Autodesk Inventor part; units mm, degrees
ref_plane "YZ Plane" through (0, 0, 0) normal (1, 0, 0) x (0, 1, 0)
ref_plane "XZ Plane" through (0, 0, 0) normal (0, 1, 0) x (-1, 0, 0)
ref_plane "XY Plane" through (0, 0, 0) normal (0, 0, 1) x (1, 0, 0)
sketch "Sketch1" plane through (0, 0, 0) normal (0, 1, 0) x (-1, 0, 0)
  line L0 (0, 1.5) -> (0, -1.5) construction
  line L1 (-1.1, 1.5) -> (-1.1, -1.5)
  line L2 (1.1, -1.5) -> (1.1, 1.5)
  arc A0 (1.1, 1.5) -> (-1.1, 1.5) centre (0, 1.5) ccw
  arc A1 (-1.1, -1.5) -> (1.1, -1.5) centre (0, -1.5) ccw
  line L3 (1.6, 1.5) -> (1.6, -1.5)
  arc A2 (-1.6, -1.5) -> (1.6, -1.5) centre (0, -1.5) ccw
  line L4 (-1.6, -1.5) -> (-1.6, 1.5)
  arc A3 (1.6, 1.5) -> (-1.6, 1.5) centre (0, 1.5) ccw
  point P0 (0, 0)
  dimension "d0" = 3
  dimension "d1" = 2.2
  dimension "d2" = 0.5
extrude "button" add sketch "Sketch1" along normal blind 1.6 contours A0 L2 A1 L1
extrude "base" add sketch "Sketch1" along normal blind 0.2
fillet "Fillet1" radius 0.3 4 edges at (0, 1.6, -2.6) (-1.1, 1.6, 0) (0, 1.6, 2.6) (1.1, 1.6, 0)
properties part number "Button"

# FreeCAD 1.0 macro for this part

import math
import FreeCAD as App
import Part
import Sketcher
from FreeCAD import Vector
Q = App.Units.Quantity


def edges_at(feature, points):
    """Names of the edges that pass closest to the given points."""
    edges = feature.Shape.Edges
    near = lambda p: min(range(len(edges)), key=lambda i: edges[i].distToShape(Part.Vertex(*p))[0])
    return sorted({f"Edge{near(p) + 1}" for p in points})

doc = App.newDocument("Part")
body = doc.addObject("PartDesign::Body", "Body")

sketch1 = body.newObject("Sketcher::SketchObject", "Sketch")
sketch1.AttachmentSupport = (doc.getObject("XZ_Plane"), [""])
sketch1.MapMode = "FlatFace"
sketch1.addGeometry([
    Part.ArcOfCircle(Part.Circle(Vector(0, 1.5, 0), Vector(0, 0, 1), 1.1), math.radians(0), math.radians(180)),
    Part.LineSegment(Vector(1.1, 1.5, 0), Vector(1.1, -1.5, 0)),
    Part.ArcOfCircle(Part.Circle(Vector(0, -1.5, 0), Vector(0, 0, 1), 1.1), math.radians(180), math.radians(360)),
    Part.LineSegment(Vector(-1.1, -1.5, 0), Vector(-1.1, 1.5, 0)),
], False)
sketch1.addConstraint([
    Sketcher.Constraint("Tangent", 0, 1, 1, 1),
    Sketcher.Constraint("Tangent", 1, 2, 2, 2),
    Sketcher.Constraint("Tangent", 2, 1, 3, 1),
    Sketcher.Constraint("Tangent", 3, 2, 0, 2),
    Sketcher.Constraint("Vertical", 1),
    Sketcher.Constraint("Vertical", 3),
    Sketcher.Constraint("Symmetric", 0, 3, 2, 3, -1, 1),
    Sketcher.Constraint("Radius", 0, Q("1.1 mm")),
    Sketcher.Constraint("DistanceY", 1, 2, 1, 1, Q("3 mm")),
])
pad1 = body.newObject("PartDesign::Pad", "Pad")
pad1.Profile = sketch1
pad1.Length = 1.6
pad1.Reversed = True

sketch2 = body.newObject("Sketcher::SketchObject", "Sketch001")
sketch2.AttachmentSupport = (doc.getObject("XZ_Plane"), [""])
sketch2.MapMode = "FlatFace"
sketch2.addGeometry([
    Part.LineSegment(Vector(-1.6, -1.5, 0), Vector(-1.6, 1.5, 0)),
    Part.ArcOfCircle(Part.Circle(Vector(0, 1.5, 0), Vector(0, 0, 1), 1.6), math.radians(0), math.radians(180)),
    Part.LineSegment(Vector(1.6, 1.5, 0), Vector(1.6, -1.5, 0)),
    Part.ArcOfCircle(Part.Circle(Vector(0, -1.5, 0), Vector(0, 0, 1), 1.6), math.radians(180), math.radians(360)),
    Part.LineSegment(Vector(1.1, -1.5, 0), Vector(1.1, 1.5, 0)),
    Part.ArcOfCircle(Part.Circle(Vector(0, 1.5, 0), Vector(0, 0, 1), 1.1), math.radians(0), math.radians(180)),
    Part.LineSegment(Vector(-1.1, 1.5, 0), Vector(-1.1, -1.5, 0)),
    Part.ArcOfCircle(Part.Circle(Vector(0, -1.5, 0), Vector(0, 0, 1), 1.1), math.radians(180), math.radians(360)),
], False)
sketch2.addConstraint([
    Sketcher.Constraint("Tangent", 0, 2, 1, 2),
    Sketcher.Constraint("Tangent", 1, 1, 2, 1),
    Sketcher.Constraint("Tangent", 2, 2, 3, 2),
    Sketcher.Constraint("Tangent", 3, 1, 0, 1),
    Sketcher.Constraint("Tangent", 4, 2, 5, 1),
    Sketcher.Constraint("Tangent", 5, 2, 6, 1),
    Sketcher.Constraint("Tangent", 6, 2, 7, 1),
    Sketcher.Constraint("Tangent", 7, 2, 4, 1),
    Sketcher.Constraint("Vertical", 0),
    Sketcher.Constraint("Vertical", 2),
    Sketcher.Constraint("Vertical", 4),
    Sketcher.Constraint("Vertical", 6),
    Sketcher.Constraint("Coincident", 5, 3, 1, 3),
    Sketcher.Constraint("Symmetric", 1, 3, 3, 3, -1, 1),
    Sketcher.Constraint("Horizontal", 7, 3, 2, 2),
    Sketcher.Constraint("Radius", 5, Q("1.1 mm")),
    Sketcher.Constraint("DistanceY", 0, 1, 0, 2, Q("3 mm")),
    Sketcher.Constraint("Radius", 1, Q("1.6 mm")),
])
pad2 = body.newObject("PartDesign::Pad", "Pad001")
pad2.Profile = sketch2
pad2.Length = 0.2
pad2.Reversed = True
doc.recompute()

fillet = body.newObject("PartDesign::Fillet", "Fillet")
fillet.Base = (pad2, edges_at(pad2, [
    (0, 1.6, -2.6),
    (-1.1, 1.6, 0),
    (0, 1.6, 2.6),
    (1.1, 1.6, 0),
]))
fillet.Radius = 0.3

doc.recompute()
